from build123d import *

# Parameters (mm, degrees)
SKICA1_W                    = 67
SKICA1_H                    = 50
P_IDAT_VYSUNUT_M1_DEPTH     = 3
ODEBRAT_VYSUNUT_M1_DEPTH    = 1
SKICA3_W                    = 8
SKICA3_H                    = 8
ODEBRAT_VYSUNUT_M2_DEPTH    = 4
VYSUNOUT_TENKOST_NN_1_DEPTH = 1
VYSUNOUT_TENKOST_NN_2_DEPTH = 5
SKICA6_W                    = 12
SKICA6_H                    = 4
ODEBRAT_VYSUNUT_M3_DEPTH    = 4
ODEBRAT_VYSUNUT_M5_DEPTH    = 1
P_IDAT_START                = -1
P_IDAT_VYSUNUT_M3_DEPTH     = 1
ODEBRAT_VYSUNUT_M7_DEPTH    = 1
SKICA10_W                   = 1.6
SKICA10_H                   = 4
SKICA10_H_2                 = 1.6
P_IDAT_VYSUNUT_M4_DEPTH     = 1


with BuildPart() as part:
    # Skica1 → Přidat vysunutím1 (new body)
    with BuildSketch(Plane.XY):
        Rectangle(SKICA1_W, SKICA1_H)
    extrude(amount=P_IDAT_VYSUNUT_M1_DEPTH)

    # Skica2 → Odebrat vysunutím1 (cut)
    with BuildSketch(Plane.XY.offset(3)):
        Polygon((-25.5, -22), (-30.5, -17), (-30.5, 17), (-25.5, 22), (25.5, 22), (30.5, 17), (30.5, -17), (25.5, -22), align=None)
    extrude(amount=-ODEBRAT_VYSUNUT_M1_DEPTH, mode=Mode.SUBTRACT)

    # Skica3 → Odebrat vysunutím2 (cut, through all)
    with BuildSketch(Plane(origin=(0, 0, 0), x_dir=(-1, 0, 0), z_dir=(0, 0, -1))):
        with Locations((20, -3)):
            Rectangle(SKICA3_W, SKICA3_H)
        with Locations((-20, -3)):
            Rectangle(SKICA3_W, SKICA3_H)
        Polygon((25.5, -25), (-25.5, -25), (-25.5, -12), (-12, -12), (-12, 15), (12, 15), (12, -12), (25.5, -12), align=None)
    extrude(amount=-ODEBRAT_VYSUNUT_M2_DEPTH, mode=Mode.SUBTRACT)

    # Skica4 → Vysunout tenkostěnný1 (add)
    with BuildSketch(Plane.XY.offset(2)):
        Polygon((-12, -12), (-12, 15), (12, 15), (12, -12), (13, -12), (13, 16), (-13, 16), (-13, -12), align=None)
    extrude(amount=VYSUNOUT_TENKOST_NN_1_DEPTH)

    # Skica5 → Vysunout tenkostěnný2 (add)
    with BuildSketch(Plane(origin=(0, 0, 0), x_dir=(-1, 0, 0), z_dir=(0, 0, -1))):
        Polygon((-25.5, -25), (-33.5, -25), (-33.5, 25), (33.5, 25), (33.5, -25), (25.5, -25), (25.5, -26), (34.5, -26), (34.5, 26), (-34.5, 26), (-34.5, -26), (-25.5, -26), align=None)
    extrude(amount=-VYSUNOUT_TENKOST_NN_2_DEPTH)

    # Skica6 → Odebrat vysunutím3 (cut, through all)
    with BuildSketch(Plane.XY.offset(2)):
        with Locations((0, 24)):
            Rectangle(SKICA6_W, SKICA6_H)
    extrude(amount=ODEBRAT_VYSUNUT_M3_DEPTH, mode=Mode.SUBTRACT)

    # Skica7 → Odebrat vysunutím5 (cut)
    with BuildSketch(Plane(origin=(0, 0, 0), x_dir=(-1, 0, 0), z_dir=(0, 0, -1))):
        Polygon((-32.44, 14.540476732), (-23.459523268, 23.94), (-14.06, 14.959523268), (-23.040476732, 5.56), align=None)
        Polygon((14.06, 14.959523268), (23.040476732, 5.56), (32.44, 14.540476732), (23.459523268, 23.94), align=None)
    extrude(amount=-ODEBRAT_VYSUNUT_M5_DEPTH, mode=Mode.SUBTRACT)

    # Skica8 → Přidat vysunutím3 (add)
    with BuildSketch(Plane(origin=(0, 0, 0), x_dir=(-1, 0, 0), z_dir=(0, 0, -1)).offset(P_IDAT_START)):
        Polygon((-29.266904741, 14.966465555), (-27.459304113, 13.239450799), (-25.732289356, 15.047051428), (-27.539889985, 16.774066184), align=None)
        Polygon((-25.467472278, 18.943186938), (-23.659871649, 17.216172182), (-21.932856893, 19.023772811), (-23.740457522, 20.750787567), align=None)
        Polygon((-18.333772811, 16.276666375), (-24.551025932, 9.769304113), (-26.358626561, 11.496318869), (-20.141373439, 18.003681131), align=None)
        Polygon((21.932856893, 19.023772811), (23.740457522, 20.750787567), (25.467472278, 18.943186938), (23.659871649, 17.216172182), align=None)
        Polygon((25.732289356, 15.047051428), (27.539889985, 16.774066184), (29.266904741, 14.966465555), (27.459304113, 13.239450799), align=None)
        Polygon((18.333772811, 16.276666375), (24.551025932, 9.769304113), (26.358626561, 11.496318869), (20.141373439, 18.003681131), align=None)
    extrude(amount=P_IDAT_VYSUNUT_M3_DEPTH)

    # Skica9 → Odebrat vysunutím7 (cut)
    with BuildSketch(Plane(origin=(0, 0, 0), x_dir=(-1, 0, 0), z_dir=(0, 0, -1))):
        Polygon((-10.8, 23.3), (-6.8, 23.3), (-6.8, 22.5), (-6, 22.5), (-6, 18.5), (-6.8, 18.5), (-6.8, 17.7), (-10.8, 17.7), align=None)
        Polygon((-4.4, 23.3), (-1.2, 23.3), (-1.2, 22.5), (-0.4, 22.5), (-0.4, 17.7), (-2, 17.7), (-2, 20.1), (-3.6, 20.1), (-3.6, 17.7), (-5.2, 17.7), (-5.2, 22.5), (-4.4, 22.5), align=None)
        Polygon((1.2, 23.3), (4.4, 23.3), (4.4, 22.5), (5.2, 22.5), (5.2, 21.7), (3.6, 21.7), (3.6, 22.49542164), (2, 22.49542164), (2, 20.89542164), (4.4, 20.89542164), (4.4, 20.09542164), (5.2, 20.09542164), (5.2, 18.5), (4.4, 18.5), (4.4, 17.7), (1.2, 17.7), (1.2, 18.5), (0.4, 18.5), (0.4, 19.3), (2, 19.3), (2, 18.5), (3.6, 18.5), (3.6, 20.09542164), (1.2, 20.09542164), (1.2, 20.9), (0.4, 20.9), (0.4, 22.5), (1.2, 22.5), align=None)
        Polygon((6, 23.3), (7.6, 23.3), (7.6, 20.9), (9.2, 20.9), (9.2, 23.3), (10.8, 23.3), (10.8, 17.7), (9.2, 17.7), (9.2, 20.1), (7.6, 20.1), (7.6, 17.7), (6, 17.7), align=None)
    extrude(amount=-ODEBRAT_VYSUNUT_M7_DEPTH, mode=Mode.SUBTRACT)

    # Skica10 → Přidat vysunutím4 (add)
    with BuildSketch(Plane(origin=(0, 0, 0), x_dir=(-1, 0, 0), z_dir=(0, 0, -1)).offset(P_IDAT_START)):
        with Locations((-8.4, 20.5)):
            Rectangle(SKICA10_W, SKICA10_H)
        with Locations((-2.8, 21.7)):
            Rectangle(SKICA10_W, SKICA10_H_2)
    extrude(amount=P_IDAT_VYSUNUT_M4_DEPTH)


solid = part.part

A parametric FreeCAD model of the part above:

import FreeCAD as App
import Part
import Sketcher

V = App.Vector
Q = App.Units.Quantity

doc = App.newDocument("Part")
body = doc.addObject("PartDesign::Body", "Body")

# Sketch on XY plane
sketch1 = body.newObject("Sketcher::SketchObject", "Sketch")
sketch1.AttachmentSupport = (doc.getObject("XY_Plane"), [""])
sketch1.MapMode = "FlatFace"
sketch1.addGeometry([
    Part.LineSegment(V(-33.5, 25, 0), V(-33.5, -25, 0)),
    Part.LineSegment(V(-33.5, -25, 0), V(33.5, -25, 0)),
    Part.LineSegment(V(33.5, -25, 0), V(33.5, 25, 0)),
    Part.LineSegment(V(33.5, 25, 0), V(-33.5, 25, 0)),
], False)
sketch1.addConstraint([
    Sketcher.Constraint("Coincident", 0, 2, 1, 1),
    Sketcher.Constraint("Coincident", 1, 2, 2, 1),
    Sketcher.Constraint("Coincident", 2, 2, 3, 1),
    Sketcher.Constraint("Coincident", 3, 2, 0, 1),
    Sketcher.Constraint("Vertical", 0),
    Sketcher.Constraint("Horizontal", 1),
    Sketcher.Constraint("Vertical", 2),
    Sketcher.Constraint("Horizontal", 3),
    Sketcher.Constraint("Symmetric", 0, 2, 2, 2, -1, 1),
    Sketcher.Constraint("DistanceX", 1, 1, 1, 2, Q("67 mm")),
    Sketcher.Constraint("DistanceY", 0, 2, 0, 1, Q("50 mm")),
])
pad1 = body.newObject("PartDesign::Pad", "Pad")
pad1.Profile = sketch1
pad1.Length = 3

# Sketch on XY plane
sketch2 = body.newObject("Sketcher::SketchObject", "Sketch001")
sketch2.AttachmentSupport = (doc.getObject("XY_Plane"), [""])
sketch2.MapMode = "FlatFace"
sketch2.AttachmentOffset = App.Placement(V(0, 0, 3), App.Rotation())
sketch2.addGeometry([
    Part.LineSegment(V(-30.5, -17, 0), V(-25.5, -22, 0)),  # 0
    Part.LineSegment(V(-25.5, -22, 0), V(25.5, -22, 0)),  # 1
    Part.LineSegment(V(25.5, -22, 0), V(30.5, -17, 0)),  # 2
    Part.LineSegment(V(30.5, -17, 0), V(30.5, 17, 0)),  # 3
    Part.LineSegment(V(30.5, 17, 0), V(25.5, 22, 0)),  # 4
    Part.LineSegment(V(25.5, 22, 0), V(-25.5, 22, 0)),  # 5
    Part.LineSegment(V(-25.5, 22, 0), V(-30.5, 17, 0)),  # 6
    Part.LineSegment(V(-30.5, 17, 0), V(-30.5, -17, 0)),  # 7
], False)
sketch2.addConstraint([
    Sketcher.Constraint("Coincident", 0, 2, 1, 1),
    Sketcher.Constraint("Coincident", 1, 2, 2, 1),
    Sketcher.Constraint("Coincident", 2, 2, 3, 1),
    Sketcher.Constraint("Coincident", 3, 2, 4, 1),
    Sketcher.Constraint("Coincident", 4, 2, 5, 1),
    Sketcher.Constraint("Coincident", 5, 2, 6, 1),
    Sketcher.Constraint("Coincident", 6, 2, 7, 1),
    Sketcher.Constraint("Coincident", 7, 2, 0, 1),
    Sketcher.Constraint("Horizontal", 1),
    Sketcher.Constraint("Vertical", 3),
    Sketcher.Constraint("Horizontal", 5),
    Sketcher.Constraint("Vertical", 7),
    Sketcher.Constraint("Symmetric", 0, 2, 4, 2, -1, 1),
    Sketcher.Constraint("Symmetric", 2, 2, 6, 2, -1, 1),
    Sketcher.Constraint("Perpendicular", 0, 2),
    Sketcher.Constraint("Perpendicular", 2, 4),
    Sketcher.Constraint("Perpendicular", 4, 6),
    Sketcher.Constraint("Horizontal", 3, 2, 6, 2),
    Sketcher.Constraint("Vertical", 1, 2, 4, 2),
    Sketcher.Constraint("DistanceX", 1, 1, 1, 2, Q("51 mm")),
    Sketcher.Constraint("DistanceY", 3, 1, 3, 2, Q("34 mm")),
    Sketcher.Constraint("DistanceY", 0, 2, -1, 1, Q("22 mm")),
])
pocket1 = body.newObject("PartDesign::Pocket", "Pocket")
pocket1.Profile = sketch2
pocket1.Length = 1

# Sketch on XY plane
sketch3 = body.newObject("Sketcher::SketchObject", "Sketch002")
sketch3.AttachmentSupport = (doc.getObject("XY_Plane"), [""])
sketch3.MapMode = "FlatFace"
sketch3.addGeometry([
    Part.LineSegment(V(-16, 1, 0), V(-16, -7, 0)),  # 0
    Part.LineSegment(V(-16, -7, 0), V(-24, -7, 0)),  # 1
    Part.LineSegment(V(-24, -7, 0), V(-24, 1, 0)),  # 2
    Part.LineSegment(V(-24, 1, 0), V(-16, 1, 0)),  # 3
    Part.LineSegment(V(24, 1, 0), V(24, -7, 0)),  # 4
    Part.LineSegment(V(24, -7, 0), V(16, -7, 0)),  # 5
    Part.LineSegment(V(16, -7, 0), V(16, 1, 0)),  # 6
    Part.LineSegment(V(16, 1, 0), V(24, 1, 0)),  # 7
    Part.LineSegment(V(25.5, -25, 0), V(-25.5, -25, 0)),  # 8
    Part.LineSegment(V(-25.5, -25, 0), V(-25.5, -12, 0)),  # 9
    Part.LineSegment(V(-25.5, -12, 0), V(-12, -12, 0)),  # 10
    Part.LineSegment(V(-12, -12, 0), V(-12, 15, 0)),  # 11
    Part.LineSegment(V(-12, 15, 0), V(12, 15, 0)),  # 12
    Part.LineSegment(V(12, 15, 0), V(12, -12, 0)),  # 13
    Part.LineSegment(V(12, -12, 0), V(25.5, -12, 0)),  # 14
    Part.LineSegment(V(25.5, -12, 0), V(25.5, -25, 0)),  # 15
], False)
sketch3.addConstraint([
    Sketcher.Constraint("Coincident", 0, 2, 1, 1),
    Sketcher.Constraint("Coincident", 1, 2, 2, 1),
    Sketcher.Constraint("Coincident", 2, 2, 3, 1),
    Sketcher.Constraint("Coincident", 3, 2, 0, 1),
    Sketcher.Constraint("Coincident", 4, 2, 5, 1),
    Sketcher.Constraint("Coincident", 5, 2, 6, 1),
    Sketcher.Constraint("Coincident", 6, 2, 7, 1),
    Sketcher.Constraint("Coincident", 7, 2, 4, 1),
    Sketcher.Constraint("Coincident", 8, 2, 9, 1),
    Sketcher.Constraint("Coincident", 9, 2, 10, 1),
    Sketcher.Constraint("Coincident", 10, 2, 11, 1),
    Sketcher.Constraint("Coincident", 11, 2, 12, 1),
    Sketcher.Constraint("Coincident", 12, 2, 13, 1),
    Sketcher.Constraint("Coincident", 13, 2, 14, 1),
    Sketcher.Constraint("Coincident", 14, 2, 15, 1),
    Sketcher.Constraint("Coincident", 15, 2, 8, 1),
    Sketcher.Constraint("Vertical", 0),
    Sketcher.Constraint("Horizontal", 1),
    Sketcher.Constraint("Vertical", 2),
    Sketcher.Constraint("Horizontal", 3),
    Sketcher.Constraint("Vertical", 4),
    Sketcher.Constraint("Horizontal", 5),
    Sketcher.Constraint("Vertical", 6),
    Sketcher.Constraint("Horizontal", 7),
    Sketcher.Constraint("Horizontal", 8),
    Sketcher.Constraint("Vertical", 9),
    Sketcher.Constraint("Horizontal", 10),
    Sketcher.Constraint("Vertical", 11),
    Sketcher.Constraint("Horizontal", 12),
    Sketcher.Constraint("Vertical", 13),
    Sketcher.Constraint("Horizontal", 14),
    Sketcher.Constraint("Vertical", 15),
    Sketcher.Constraint("Symmetric", 1, 2, 4, 2, -2),
    Sketcher.Constraint("Symmetric", 3, 2, 6, 2, -2),
    Sketcher.Constraint("Symmetric", 10, 2, 13, 2, -2),
    Sketcher.Constraint("Equal", 10, 14),
    Sketcher.Constraint("Equal", 7, 0),
    Sketcher.Constraint("DistanceX", 1, 2, 1, 1, Q("8 mm")),
    Sketcher.Constraint("DistanceX", 8, 2, 8, 1, Q("51 mm")),
    Sketcher.Constraint("DistanceX", 12, 1, 12, 2, Q("24 mm")),
    Sketcher.Constraint("DistanceY", 9, 1, 9, 2, Q("13 mm")),
    Sketcher.Constraint("DistanceY", 11, 1, 11, 2, Q("27 mm")),
    Sketcher.Constraint("DistanceX", 0, 2, -1, 1, Q("16 mm")),
    Sketcher.Constraint("DistanceY", 0, 2, -1, 1, Q("7 mm")),
    Sketcher.Constraint("DistanceY", 8, 2, -1, 1, Q("25 mm")),
])
pocket2 = body.newObject("PartDesign::Pocket", "Pocket001")
pocket2.Profile = sketch3
pocket2.Type = "ThroughAll"
pocket2.Reversed = True

# Sketch on XY plane
sketch4 = body.newObject("Sketcher::SketchObject", "Sketch003")
sketch4.AttachmentSupport = (doc.getObject("XY_Plane"), [""])
sketch4.MapMode = "FlatFace"
sketch4.AttachmentOffset = App.Placement(V(0, 0, 2), App.Rotation())
sketch4.addGeometry([
    Part.LineSegment(V(-12, -12, 0), V(-12, 15, 0)),  # 0
    Part.LineSegment(V(-12, 15, 0), V(12, 15, 0)),  # 1
    Part.LineSegment(V(12, 15, 0), V(12, -12, 0)),  # 2
    Part.LineSegment(V(12, -12, 0), V(13, -12, 0)),  # 3
    Part.LineSegment(V(13, -12, 0), V(13, 16, 0)),  # 4
    Part.LineSegment(V(13, 16, 0), V(-13, 16, 0)),  # 5
    Part.LineSegment(V(-13, 16, 0), V(-13, -12, 0)),  # 6
    Part.LineSegment(V(-13, -12, 0), V(-12, -12, 0)),  # 7
], False)
sketch4.addConstraint([
    Sketcher.Constraint("Coincident", 0, 2, 1, 1),
    Sketcher.Constraint("Coincident", 1, 2, 2, 1),
    Sketcher.Constraint("Coincident", 2, 2, 3, 1),
    Sketcher.Constraint("Coincident", 3, 2, 4, 1),
    Sketcher.Constraint("Coincident", 4, 2, 5, 1),
    Sketcher.Constraint("Coincident", 5, 2, 6, 1),
    Sketcher.Constraint("Coincident", 6, 2, 7, 1),
    Sketcher.Constraint("Coincident", 7, 2, 0, 1),
    Sketcher.Constraint("Vertical", 0),
    Sketcher.Constraint("Horizontal", 1),
    Sketcher.Constraint("Vertical", 2),
    Sketcher.Constraint("Horizontal", 3),
    Sketcher.Constraint("Vertical", 4),
    Sketcher.Constraint("Horizontal", 5),
    Sketcher.Constraint("Vertical", 6),
    Sketcher.Constraint("Horizontal", 7),
    Sketcher.Constraint("Symmetric", 3, 2, 6, 2, -2),
    Sketcher.Constraint("Equal", 3, 7),
    Sketcher.Constraint("DistanceX", 1, 1, 1, 2, Q("24 mm")),
    Sketcher.Constraint("DistanceX", 3, 1, 3, 2, Q("1 mm")),
    Sketcher.Constraint("DistanceY", 0, 1, 0, 2, Q("27 mm")),
    Sketcher.Constraint("DistanceY", 4, 1, 4, 2, Q("28 mm")),
    Sketcher.Constraint("DistanceY", -1, 1, 0, 2, Q("15 mm")),
])
pad2 = body.newObject("PartDesign::Pad", "Pad001")
pad2.Profile = sketch4
pad2.Length = 1

# Sketch on XY plane
sketch5 = body.newObject("Sketcher::SketchObject", "Sketch004")
sketch5.AttachmentSupport = (doc.getObject("XY_Plane"), [""])
sketch5.MapMode = "FlatFace"
sketch5.addGeometry([
    Part.LineSegment(V(25.5, -25, 0), V(33.5, -25, 0)),  # 0
    Part.LineSegment(V(33.5, -25, 0), V(33.5, 25, 0)),  # 1
    Part.LineSegment(V(33.5, 25, 0), V(-33.5, 25, 0)),  # 2
    Part.LineSegment(V(-33.5, 25, 0), V(-33.5, -25, 0)),  # 3
    Part.LineSegment(V(-33.5, -25, 0), V(-25.5, -25, 0)),  # 4
    Part.LineSegment(V(-25.5, -25, 0), V(-25.5, -26, 0)),  # 5
    Part.LineSegment(V(-25.5, -26, 0), V(-34.5, -26, 0)),  # 6
    Part.LineSegment(V(-34.5, -26, 0), V(-34.5, 26, 0)),  # 7
    Part.LineSegment(V(-34.5, 26, 0), V(34.5, 26, 0)),  # 8
    Part.LineSegment(V(34.5, 26, 0), V(34.5, -26, 0)),  # 9
    Part.LineSegment(V(34.5, -26, 0), V(25.5, -26, 0)),  # 10
    Part.LineSegment(V(25.5, -26, 0), V(25.5, -25, 0)),  # 11
], False)
sketch5.addConstraint([
    Sketcher.Constraint("Coincident", 0, 2, 1, 1),
    Sketcher.Constraint("Coincident", 1, 2, 2, 1),
    Sketcher.Constraint("Coincident", 2, 2, 3, 1),
    Sketcher.Constraint("Coincident", 3, 2, 4, 1),
    Sketcher.Constraint("Coincident", 4, 2, 5, 1),
    Sketcher.Constraint("Coincident", 5, 2, 6, 1),
    Sketcher.Constraint("Coincident", 6, 2, 7, 1),
    Sketcher.Constraint("Coincident", 7, 2, 8, 1),
    Sketcher.Constraint("Coincident", 8, 2, 9, 1),
    Sketcher.Constraint("Coincident", 9, 2, 10, 1),
    Sketcher.Constraint("Coincident", 10, 2, 11, 1),
    Sketcher.Constraint("Coincident", 11, 2, 0, 1),
    Sketcher.Constraint("Horizontal", 0),
    Sketcher.Constraint("Vertical", 1),
    Sketcher.Constraint("Horizontal", 2),
    Sketcher.Constraint("Vertical", 3),
    Sketcher.Constraint("Horizontal", 4),
    Sketcher.Constraint("Vertical", 5),
    Sketcher.Constraint("Horizontal", 6),
    Sketcher.Constraint("Vertical", 7),
    Sketcher.Constraint("Horizontal", 8),
    Sketcher.Constraint("Vertical", 9),
    Sketcher.Constraint("Horizontal", 10),
    Sketcher.Constraint("Vertical", 11),
    Sketcher.Constraint("Symmetric", 0, 2, 2, 2, -1, 1),
    Sketcher.Constraint("Symmetric", 6, 2, 8, 2, -1, 1),
    Sketcher.Constraint("Symmetric", 5, 2, 10, 2, -2),
    Sketcher.Constraint("Horizontal", 0, 2, 3, 2),
    Sketcher.Constraint("DistanceX", 0, 1, 0, 2, Q("8 mm")),
    Sketcher.Constraint("DistanceX", 2, 2, 2, 1, Q("67 mm")),
    Sketcher.Constraint("DistanceX", 6, 2, 6, 1, Q("9 mm")),
    Sketcher.Constraint("DistanceY", 1, 1, 1, 2, Q("50 mm")),
    Sketcher.Constraint("DistanceY", 5, 2, 5, 1, Q("1 mm")),
])
pad3 = body.newObject("PartDesign::Pad", "Pad002")
pad3.Profile = sketch5
pad3.Length = 5

# Sketch on XY plane
sketch6 = body.newObject("Sketcher::SketchObject", "Sketch005")
sketch6.AttachmentSupport = (doc.getObject("XY_Plane"), [""])
sketch6.MapMode = "FlatFace"
sketch6.AttachmentOffset = App.Placement(V(0, 0, 2), App.Rotation())
sketch6.addGeometry([
    Part.LineSegment(V(-6, 26, 0), V(-6, 22, 0)),
    Part.LineSegment(V(-6, 22, 0), V(6, 22, 0)),
    Part.LineSegment(V(6, 22, 0), V(6, 26, 0)),
    Part.LineSegment(V(6, 26, 0), V(-6, 26, 0)),
], False)
sketch6.addConstraint([
    Sketcher.Constraint("Coincident", 0, 2, 1, 1),
    Sketcher.Constraint("Coincident", 1, 2, 2, 1),
    Sketcher.Constraint("Coincident", 2, 2, 3, 1),
    Sketcher.Constraint("Coincident", 3, 2, 0, 1),
    Sketcher.Constraint("Vertical", 0),
    Sketcher.Constraint("Horizontal", 1),
    Sketcher.Constraint("Vertical", 2),
    Sketcher.Constraint("Horizontal", 3),
    Sketcher.Constraint("DistanceX", 1, 1, 1, 2, Q("12 mm")),
    Sketcher.Constraint("DistanceY", 0, 2, 0, 1, Q("4 mm")),
    Sketcher.Constraint("DistanceX", 0, 2, -1, 1, Q("6 mm")),
    Sketcher.Constraint("DistanceY", -1, 1, 0, 2, Q("22 mm")),
])
pocket3 = body.newObject("PartDesign::Pocket", "Pocket002")
pocket3.Profile = sketch6
pocket3.Type = "ThroughAll"
pocket3.Reversed = True

# Sketch on XY plane
sketch7 = body.newObject("Sketcher::SketchObject", "Sketch006")
sketch7.AttachmentSupport = (doc.getObject("XY_Plane"), [""])
sketch7.MapMode = "FlatFace"
sketch7.addGeometry([
    Part.LineSegment(V(23.459523, 23.94, 0), V(32.44, 14.540477, 0)),  # 0
    Part.LineSegment(V(32.44, 14.540477, 0), V(23.040477, 5.56, 0)),  # 1
    Part.LineSegment(V(23.040477, 5.56, 0), V(14.06, 14.959523, 0)),  # 2
    Part.LineSegment(V(14.06, 14.959523, 0), V(23.459523, 23.94, 0)),  # 3
    Part.LineSegment(V(-14.06, 14.959523, 0), V(-23.040477, 5.56, 0)),  # 4
    Part.LineSegment(V(-23.040477, 5.56, 0), V(-32.44, 14.540477, 0)),  # 5
    Part.LineSegment(V(-32.44, 14.540477, 0), V(-23.459523, 23.94, 0)),  # 6
    Part.LineSegment(V(-23.459523, 23.94, 0), V(-14.06, 14.959523, 0)),  # 7
], False)
sketch7.addConstraint([
    Sketcher.Constraint("Coincident", 0, 2, 1, 1),
    Sketcher.Constraint("Coincident", 1, 2, 2, 1),
    Sketcher.Constraint("Coincident", 2, 2, 3, 1),
    Sketcher.Constraint("Coincident", 3, 2, 0, 1),
    Sketcher.Constraint("Coincident", 4, 2, 5, 1),
    Sketcher.Constraint("Coincident", 5, 2, 6, 1),
    Sketcher.Constraint("Coincident", 6, 2, 7, 1),
    Sketcher.Constraint("Coincident", 7, 2, 4, 1),
    Sketcher.Constraint("Symmetric", 1, 2, 4, 2, -2),
    Sketcher.Constraint("Symmetric", 0, 2, 5, 2, -2),
    Sketcher.Constraint("Symmetric", 3, 2, 6, 2, -2),
    Sketcher.Constraint("Symmetric", 2, 2, 7, 2, -2),
    Sketcher.Constraint("Perpendicular", 0, 1),
    Sketcher.Constraint("Perpendicular", 1, 2),
    Sketcher.Constraint("Perpendicular", 2, 3),
    Sketcher.Constraint("Equal", 0, 1),
    Sketcher.Constraint("Distance", 0, Q("13 mm")),
    Sketcher.Constraint("DistanceX", 4, 2, 3, 2, Q("46.5 mm")),
    Sketcher.Constraint("DistanceX", -1, 1, 0, 2, Q("32.44 mm")),
    Sketcher.Constraint("DistanceY", -1, 1, 1, 2, Q("5.56 mm")),
])
pocket4 = body.newObject("PartDesign::Pocket", "Pocket003")
pocket4.Profile = sketch7
pocket4.Length = 1
pocket4.Reversed = True

# Sketch on XY plane
sketch8 = body.newObject("Sketcher::SketchObject", "Sketch007")
sketch8.AttachmentSupport = (doc.getObject("XY_Plane"), [""])
sketch8.MapMode = "FlatFace"
sketch8.AttachmentOffset = App.Placement(V(0, 0, 1), App.Rotation())
sketch8.addGeometry([
    Part.LineSegment(V(29.266905, 14.966466, 0), V(27.459304, 13.239451, 0)),  # 0
    Part.LineSegment(V(27.459304, 13.239451, 0), V(25.732289, 15.047051, 0)),  # 1
    Part.LineSegment(V(25.732289, 15.047051, 0), V(27.53989, 16.774066, 0)),  # 2
    Part.LineSegment(V(27.53989, 16.774066, 0), V(29.266905, 14.966466, 0)),  # 3
    Part.LineSegment(V(25.467472, 18.943187, 0), V(23.659872, 17.216172, 0)),  # 4
    Part.LineSegment(V(23.659872, 17.216172, 0), V(21.932857, 19.023773, 0)),  # 5
    Part.LineSegment(V(21.932857, 19.023773, 0), V(23.740458, 20.750788, 0)),  # 6
    Part.LineSegment(V(23.740458, 20.750788, 0), V(25.467472, 18.943187, 0)),  # 7
    Part.LineSegment(V(24.551026, 9.769304, 0), V(18.333773, 16.276666, 0)),  # 8
    Part.LineSegment(V(18.333773, 16.276666, 0), V(20.141373, 18.003681, 0)),  # 9
    Part.LineSegment(V(20.141373, 18.003681, 0), V(26.358627, 11.496319, 0)),  # 10
    Part.LineSegment(V(26.358627, 11.496319, 0), V(24.551026, 9.769304, 0)),  # 11
    Part.LineSegment(V(-23.740458, 20.750788, 0), V(-21.932857, 19.023773, 0)),  # 12
    Part.LineSegment(V(-21.932857, 19.023773, 0), V(-23.659872, 17.216172, 0)),  # 13
    Part.LineSegment(V(-23.659872, 17.216172, 0), V(-25.467472, 18.943187, 0)),  # 14
    Part.LineSegment(V(-25.467472, 18.943187, 0), V(-23.740458, 20.750788, 0)),  # 15
    Part.LineSegment(V(-27.53989, 16.774066, 0), V(-25.732289, 15.047051, 0)),  # 16
    Part.LineSegment(V(-25.732289, 15.047051, 0), V(-27.459304, 13.239451, 0)),  # 17
    Part.LineSegment(V(-27.459304, 13.239451, 0), V(-29.266905, 14.966466, 0)),  # 18
    Part.LineSegment(V(-29.266905, 14.966466, 0), V(-27.53989, 16.774066, 0)),  # 19
    Part.LineSegment(V(-18.333773, 16.276666, 0), V(-24.551026, 9.769304, 0)),  # 20
    Part.LineSegment(V(-24.551026, 9.769304, 0), V(-26.358627, 11.496319, 0)),  # 21
    Part.LineSegment(V(-26.358627, 11.496319, 0), V(-20.141373, 18.003681, 0)),  # 22
    Part.LineSegment(V(-20.141373, 18.003681, 0), V(-18.333773, 16.276666, 0)),  # 23
], False)
sketch8.addConstraint([
    Sketcher.Constraint("Coincident", 0, 2, 1, 1),
    Sketcher.Constraint("Coincident", 1, 2, 2, 1),
    Sketcher.Constraint("Coincident", 2, 2, 3, 1),
    Sketcher.Constraint("Coincident", 3, 2, 0, 1),
    Sketcher.Constraint("Coincident", 4, 2, 5, 1),
    Sketcher.Constraint("Coincident", 5, 2, 6, 1),
    Sketcher.Constraint("Coincident", 6, 2, 7, 1),
    Sketcher.Constraint("Coincident", 7, 2, 4, 1),
    Sketcher.Constraint("Coincident", 8, 2, 9, 1),
    Sketcher.Constraint("Coincident", 9, 2, 10, 1),
    Sketcher.Constraint("Coincident", 10, 2, 11, 1),
    Sketcher.Constraint("Coincident", 11, 2, 8, 1),
    Sketcher.Constraint("Coincident", 12, 2, 13, 1),
    Sketcher.Constraint("Coincident", 13, 2, 14, 1),
    Sketcher.Constraint("Coincident", 14, 2, 15, 1),
    Sketcher.Constraint("Coincident", 15, 2, 12, 1),
    Sketcher.Constraint("Coincident", 16, 2, 17, 1),
    Sketcher.Constraint("Coincident", 17, 2, 18, 1),
    Sketcher.Constraint("Coincident", 18, 2, 19, 1),
    Sketcher.Constraint("Coincident", 19, 2, 16, 1),
    Sketcher.Constraint("Coincident", 20, 2, 21, 1),
    Sketcher.Constraint("Coincident", 21, 2, 22, 1),
    Sketcher.Constraint("Coincident", 22, 2, 23, 1),
    Sketcher.Constraint("Coincident", 23, 2, 20, 1),
    Sketcher.Constraint("Symmetric", 5, 2, 12, 2, -2),
    Sketcher.Constraint("Symmetric", 4, 2, 13, 2, -2),
    Sketcher.Constraint("Symmetric", 7, 2, 14, 2, -2),
    Sketcher.Constraint("Symmetric", 6, 2, 15, 2, -2),
    Sketcher.Constraint("Symmetric", 1, 2, 16, 2, -2),
    Sketcher.Constraint("Symmetric", 0, 2, 17, 2, -2),
    Sketcher.Constraint("Symmetric", 3, 2, 18, 2, -2),
    Sketcher.Constraint("Symmetric", 2, 2, 19, 2, -2),
    Sketcher.Constraint("Symmetric", 11, 2, 20, 2, -2),
    Sketcher.Constraint("Symmetric", 10, 2, 21, 2, -2),
    Sketcher.Constraint("Symmetric", 9, 2, 22, 2, -2),
    Sketcher.Constraint("Symmetric", 8, 2, 23, 2, -2),
    Sketcher.Constraint("Perpendicular", 0, 1),
    Sketcher.Constraint("Perpendicular", 1, 2),
    Sketcher.Constraint("Perpendicular", 2, 3),
    Sketcher.Constraint("Perpendicular", 3, 4),
    Sketcher.Constraint("Perpendicular", 4, 5),
    Sketcher.Constraint("Perpendicular", 5, 6),
    Sketcher.Constraint("Perpendicular", 6, 7),
    Sketcher.Constraint("Parallel", 7, 8),
    Sketcher.Constraint("Perpendicular", 8, 9),
    Sketcher.Constraint("Perpendicular", 9, 10),
    Sketcher.Constraint("Perpendicular", 10, 11),
    Sketcher.Constraint("Equal", 0, 1),
    Sketcher.Constraint("Equal", 3, 4),
    Sketcher.Constraint("Equal", 4, 5),
    Sketcher.Constraint("Equal", 7, 9),
    Sketcher.Constraint("Distance", 8, Q("9 mm")),
    Sketcher.Constraint("Distance", 0, Q("2.5 mm")),
    Sketcher.Constraint("DistanceY", 0, 2, 1, 2, Q("1.807601 mm")),
    Sketcher.Constraint("DistanceX", 8, 2, 4, 2, Q("5.326099 mm")),
    Sketcher.Constraint("DistanceY", -1, 1, 0, 2, Q("13.239451 mm")),
    Sketcher.Constraint("DistanceX", -1, 1, 1, 2, Q("25.732289 mm")),
    Sketcher.Constraint("DistanceX", -1, 1, 4, 2, Q("23.659872 mm")),
    Sketcher.Constraint("DistanceY", -1, 1, 9, 2, Q("18.003681 mm")),
    Sketcher.Constraint("DistanceY", 1, 2, 4, 2, Q("2.169121 mm")),
])
pad4 = body.newObject("PartDesign::Pad", "Pad003")
pad4.Profile = sketch8
pad4.Length = 1
pad4.Reversed = True

# Sketch on XY plane
sketch9 = body.newObject("Sketcher::SketchObject", "Sketch008")
sketch9.AttachmentSupport = (doc.getObject("XY_Plane"), [""])
sketch9.MapMode = "FlatFace"
sketch9.addGeometry([
    Part.LineSegment(V(6.8, 23.3, 0), V(10.8, 23.3, 0)),  # 0
    Part.LineSegment(V(10.8, 23.3, 0), V(10.8, 17.7, 0)),  # 1
    Part.LineSegment(V(10.8, 17.7, 0), V(6.8, 17.7, 0)),  # 2
    Part.LineSegment(V(6.8, 17.7, 0), V(6.8, 18.5, 0)),  # 3
    Part.LineSegment(V(6.8, 18.5, 0), V(6, 18.5, 0)),  # 4
    Part.LineSegment(V(6, 18.5, 0), V(6, 22.5, 0)),  # 5
    Part.LineSegment(V(6, 22.5, 0), V(6.8, 22.5, 0)),  # 6
    Part.LineSegment(V(6.8, 22.5, 0), V(6.8, 23.3, 0)),  # 7
    Part.LineSegment(V(1.2, 23.3, 0), V(4.4, 23.3, 0)),  # 8
    Part.LineSegment(V(4.4, 23.3, 0), V(4.4, 22.5, 0)),  # 9
    Part.LineSegment(V(4.4, 22.5, 0), V(5.2, 22.5, 0)),  # 10
    Part.LineSegment(V(5.2, 22.5, 0), V(5.2, 17.7, 0)),  # 11
    Part.LineSegment(V(5.2, 17.7, 0), V(3.6, 17.7, 0)),  # 12
    Part.LineSegment(V(3.6, 17.7, 0), V(3.6, 20.1, 0)),  # 13
    Part.LineSegment(V(3.6, 20.1, 0), V(2, 20.1, 0)),  # 14
    Part.LineSegment(V(2, 20.1, 0), V(2, 17.7, 0)),  # 15
    Part.LineSegment(V(2, 17.7, 0), V(0.4, 17.7, 0)),  # 16
    Part.LineSegment(V(0.4, 17.7, 0), V(0.4, 22.5, 0)),  # 17
    Part.LineSegment(V(0.4, 22.5, 0), V(1.2, 22.5, 0)),  # 18
    Part.LineSegment(V(1.2, 22.5, 0), V(1.2, 23.3, 0)),  # 19
    Part.LineSegment(V(-4.4, 23.3, 0), V(-1.2, 23.3, 0)),  # 20
    Part.LineSegment(V(-1.2, 23.3, 0), V(-1.2, 22.5, 0)),  # 21
    Part.LineSegment(V(-1.2, 22.5, 0), V(-0.4, 22.5, 0)),  # 22
    Part.LineSegment(V(-0.4, 22.5, 0), V(-0.4, 20.9, 0)),  # 23
    Part.LineSegment(V(-0.4, 20.9, 0), V(-1.2, 20.9, 0)),  # 24
    Part.LineSegment(V(-1.2, 20.9, 0), V(-1.2, 20.095422, 0)),  # 25
    Part.LineSegment(V(-1.2, 20.095422, 0), V(-3.6, 20.095422, 0)),  # 26
    Part.LineSegment(V(-3.6, 20.095422, 0), V(-3.6, 18.5, 0)),  # 27
    Part.LineSegment(V(-3.6, 18.5, 0), V(-2, 18.5, 0)),  # 28
    Part.LineSegment(V(-2, 18.5, 0), V(-2, 19.3, 0)),  # 29
    Part.LineSegment(V(-2, 19.3, 0), V(-0.4, 19.3, 0)),  # 30
    Part.LineSegment(V(-0.4, 19.3, 0), V(-0.4, 18.5, 0)),  # 31
    Part.LineSegment(V(-0.4, 18.5, 0), V(-1.2, 18.5, 0)),  # 32
    Part.LineSegment(V(-1.2, 18.5, 0), V(-1.2, 17.7, 0)),  # 33
    Part.LineSegment(V(-1.2, 17.7, 0), V(-4.4, 17.7, 0)),  # 34
    Part.LineSegment(V(-4.4, 17.7, 0), V(-4.4, 18.5, 0)),  # 35
    Part.LineSegment(V(-4.4, 18.5, 0), V(-5.2, 18.5, 0)),  # 36
    Part.LineSegment(V(-5.2, 18.5, 0), V(-5.2, 20.095422, 0)),  # 37
    Part.LineSegment(V(-5.2, 20.095422, 0), V(-4.4, 20.095422, 0)),  # 38
    Part.LineSegment(V(-4.4, 20.095422, 0), V(-4.4, 20.895422, 0)),  # 39
    Part.LineSegment(V(-4.4, 20.895422, 0), V(-2, 20.895422, 0)),  # 40
    Part.LineSegment(V(-2, 20.895422, 0), V(-2, 22.495422, 0)),  # 41
    Part.LineSegment(V(-2, 22.495422, 0), V(-3.6, 22.495422, 0)),  # 42
    Part.LineSegment(V(-3.6, 22.495422, 0), V(-3.6, 21.7, 0)),  # 43
    Part.LineSegment(V(-3.6, 21.7, 0), V(-5.2, 21.7, 0)),  # 44
    Part.LineSegment(V(-5.2, 21.7, 0), V(-5.2, 22.5, 0)),  # 45
    Part.LineSegment(V(-5.2, 22.5, 0), V(-4.4, 22.5, 0)),  # 46
    Part.LineSegment(V(-4.4, 22.5, 0), V(-4.4, 23.3, 0)),  # 47
    Part.LineSegment(V(-7.6, 23.3, 0), V(-6, 23.3, 0)),  # 48
    Part.LineSegment(V(-6, 23.3, 0), V(-6, 17.7, 0)),  # 49
    Part.LineSegment(V(-6, 17.7, 0), V(-7.6, 17.7, 0)),  # 50
    Part.LineSegment(V(-7.6, 17.7, 0), V(-7.6, 20.1, 0)),  # 51
    Part.LineSegment(V(-7.6, 20.1, 0), V(-9.2, 20.1, 0)),  # 52
    Part.LineSegment(V(-9.2, 20.1, 0), V(-9.2, 17.7, 0)),  # 53
    Part.LineSegment(V(-9.2, 17.7, 0), V(-10.8, 17.7, 0)),  # 54
    Part.LineSegment(V(-10.8, 17.7, 0), V(-10.8, 23.3, 0)),  # 55
    Part.LineSegment(V(-10.8, 23.3, 0), V(-9.2, 23.3, 0)),  # 56
    Part.LineSegment(V(-9.2, 23.3, 0), V(-9.2, 20.9, 0)),  # 57
    Part.LineSegment(V(-9.2, 20.9, 0), V(-7.6, 20.9, 0)),  # 58
    Part.LineSegment(V(-7.6, 20.9, 0), V(-7.6, 23.3, 0)),  # 59
], False)
sketch9.addConstraint([
    Sketcher.Constraint("Coincident", 0, 2, 1, 1),
    Sketcher.Constraint("Coincident", 1, 2, 2, 1),
    Sketcher.Constraint("Coincident", 2, 2, 3, 1),
    Sketcher.Constraint("Coincident", 3, 2, 4, 1),
    Sketcher.Constraint("Coincident", 4, 2, 5, 1),
    Sketcher.Constraint("Coincident", 5, 2, 6, 1),
    Sketcher.Constraint("Coincident", 6, 2, 7, 1),
    Sketcher.Constraint("Coincident", 7, 2, 0, 1),
    Sketcher.Constraint("Coincident", 8, 2, 9, 1),
    Sketcher.Constraint("Coincident", 9, 2, 10, 1),
    Sketcher.Constraint("Coincident", 10, 2, 11, 1),
    Sketcher.Constraint("Coincident", 11, 2, 12, 1),
    Sketcher.Constraint("Coincident", 12, 2, 13, 1),
    Sketcher.Constraint("Coincident", 13, 2, 14, 1),
    Sketcher.Constraint("Coincident", 14, 2, 15, 1),
    Sketcher.Constraint("Coincident", 15, 2, 16, 1),
    Sketcher.Constraint("Coincident", 16, 2, 17, 1),
    Sketcher.Constraint("Coincident", 17, 2, 18, 1),
    Sketcher.Constraint("Coincident", 18, 2, 19, 1),
    Sketcher.Constraint("Coincident", 19, 2, 8, 1),
    Sketcher.Constraint("Coincident", 20, 2, 21, 1),
    Sketcher.Constraint("Coincident", 21, 2, 22, 1),
    Sketcher.Constraint("Coincident", 22, 2, 23, 1),
    Sketcher.Constraint("Coincident", 23, 2, 24, 1),
    Sketcher.Constraint("Coincident", 24, 2, 25, 1),
    Sketcher.Constraint("Coincident", 25, 2, 26, 1),
    Sketcher.Constraint("Coincident", 26, 2, 27, 1),
    Sketcher.Constraint("Coincident", 27, 2, 28, 1),
    Sketcher.Constraint("Coincident", 28, 2, 29, 1),
    Sketcher.Constraint("Coincident", 29, 2, 30, 1),
    Sketcher.Constraint("Coincident", 30, 2, 31, 1),
    Sketcher.Constraint("Coincident", 31, 2, 32, 1),
    Sketcher.Constraint("Coincident", 32, 2, 33, 1),
    Sketcher.Constraint("Coincident", 33, 2, 34, 1),
    Sketcher.Constraint("Coincident", 34, 2, 35, 1),
    Sketcher.Constraint("Coincident", 35, 2, 36, 1),
    Sketcher.Constraint("Coincident", 36, 2, 37, 1),
    Sketcher.Constraint("Coincident", 37, 2, 38, 1),
    Sketcher.Constraint("Coincident", 38, 2, 39, 1),
    Sketcher.Constraint("Coincident", 39, 2, 40, 1),
    Sketcher.Constraint("Coincident", 40, 2, 41, 1),
    Sketcher.Constraint("Coincident", 41, 2, 42, 1),
    Sketcher.Constraint("Coincident", 42, 2, 43, 1),
    Sketcher.Constraint("Coincident", 43, 2, 44, 1),
    Sketcher.Constraint("Coincident", 44, 2, 45, 1),
    Sketcher.Constraint("Coincident", 45, 2, 46, 1),
    Sketcher.Constraint("Coincident", 46, 2, 47, 1),
    Sketcher.Constraint("Coincident", 47, 2, 20, 1),
    Sketcher.Constraint("Coincident", 48, 2, 49, 1),
    Sketcher.Constraint("Coincident", 49, 2, 50, 1),
    Sketcher.Constraint("Coincident", 50, 2, 51, 1),
    Sketcher.Constraint("Coincident", 51, 2, 52, 1),
    Sketcher.Constraint("Coincident", 52, 2, 53, 1),
    Sketcher.Constraint("Coincident", 53, 2, 54, 1),
    Sketcher.Constraint("Coincident", 54, 2, 55, 1),
    Sketcher.Constraint("Coincident", 55, 2, 56, 1),
    Sketcher.Constraint("Coincident", 56, 2, 57, 1),
    Sketcher.Constraint("Coincident", 57, 2, 58, 1),
    Sketcher.Constraint("Coincident", 58, 2, 59, 1),
    Sketcher.Constraint("Coincident", 59, 2, 48, 1),
    Sketcher.Constraint("Horizontal", 0),
    Sketcher.Constraint("Vertical", 1),
    Sketcher.Constraint("Horizontal", 2),
    Sketcher.Constraint("Vertical", 3),
    Sketcher.Constraint("Horizontal", 4),
    Sketcher.Constraint("Vertical", 5),
    Sketcher.Constraint("Horizontal", 6),
    Sketcher.Constraint("Vertical", 7),
    Sketcher.Constraint("Horizontal", 8),
    Sketcher.Constraint("Vertical", 9),
    Sketcher.Constraint("Horizontal", 10),
    Sketcher.Constraint("Vertical", 11),
    Sketcher.Constraint("Horizontal", 12),
    Sketcher.Constraint("Vertical", 13),
    Sketcher.Constraint("Horizontal", 14),
    Sketcher.Constraint("Vertical", 15),
    Sketcher.Constraint("Horizontal", 16),
    Sketcher.Constraint("Vertical", 17),
    Sketcher.Constraint("Horizontal", 18),
    Sketcher.Constraint("Vertical", 19),
    Sketcher.Constraint("Horizontal", 20),
    Sketcher.Constraint("Vertical", 21),
    Sketcher.Constraint("Horizontal", 22),
    Sketcher.Constraint("Vertical", 23),
    Sketcher.Constraint("Horizontal", 24),
    Sketcher.Constraint("Vertical", 25),
    Sketcher.Constraint("Horizontal", 26),
    Sketcher.Constraint("Vertical", 27),
    Sketcher.Constraint("Horizontal", 28),
    Sketcher.Constraint("Vertical", 29),
    Sketcher.Constraint("Horizontal", 30),
    Sketcher.Constraint("Vertical", 31),
    Sketcher.Constraint("Horizontal", 32),
    Sketcher.Constraint("Vertical", 33),
    Sketcher.Constraint("Horizontal", 34),
    Sketcher.Constraint("Vertical", 35),
    Sketcher.Constraint("Horizontal", 36),
    Sketcher.Constraint("Vertical", 37),
    Sketcher.Constraint("Horizontal", 38),
    Sketcher.Constraint("Vertical", 39),
    Sketcher.Constraint("Horizontal", 40),
    Sketcher.Constraint("Vertical", 41),
    Sketcher.Constraint("Horizontal", 42),
    Sketcher.Constraint("Vertical", 43),
    Sketcher.Constraint("Horizontal", 44),
    Sketcher.Constraint("Vertical", 45),
    Sketcher.Constraint("Horizontal", 46),
    Sketcher.Constraint("Vertical", 47),
    Sketcher.Constraint("Horizontal", 48),
    Sketcher.Constraint("Vertical", 49),
    Sketcher.Constraint("Horizontal", 50),
    Sketcher.Constraint("Vertical", 51),
    Sketcher.Constraint("Horizontal", 52),
    Sketcher.Constraint("Vertical", 53),
    Sketcher.Constraint("Horizontal", 54),
    Sketcher.Constraint("Vertical", 55),
    Sketcher.Constraint("Horizontal", 56),
    Sketcher.Constraint("Vertical", 57),
    Sketcher.Constraint("Horizontal", 58),
    Sketcher.Constraint("Vertical", 59),
    Sketcher.Constraint("Symmetric", 19, 2, 20, 2, -2),
    Sketcher.Constraint("Symmetric", 17, 2, 22, 2, -2),
    Sketcher.Constraint("Symmetric", 10, 2, 45, 2, -2),
    Sketcher.Constraint("Symmetric", 1, 2, 54, 2, -2),
    Sketcher.Constraint("Horizontal", 7, 2, 8, 2),
    Sketcher.Constraint("Horizontal", 6, 2, 9, 2),
    Sketcher.Constraint("Horizontal", 2, 2, 11, 2),
    Sketcher.Constraint("Horizontal", 12, 2, 15, 2),
    Sketcher.Constraint("Horizontal", 10, 2, 17, 2),
    Sketcher.Constraint("Horizontal", 4, 2, 27, 2),
    Sketcher.Constraint("Horizontal", 28, 2, 31, 2),
    Sketcher.Constraint("Horizontal", 16, 2, 33, 2),
    Sketcher.Constraint("Horizontal", 32, 2, 35, 2),
    Sketcher.Constraint("Horizontal", 26, 2, 37, 2),
    Sketcher.Constraint("Horizontal", 47, 2, 48, 2),
    Sketcher.Constraint("Horizontal", 34, 2, 49, 2),
    Sketcher.Constraint("Horizontal", 14, 2, 51, 2),
    Sketcher.Constraint("Horizontal", 48, 2, 55, 2),
    Sketcher.Constraint("Horizontal", 24, 2, 57, 2),
    Sketcher.Constraint("Vertical", 3, 2, 6, 2),
    Sketcher.Constraint("Vertical", 21, 2, 24, 2),
    Sketcher.Constraint("Vertical", 23, 2, 30, 2),
    Sketcher.Constraint("Vertical", 25, 2, 32, 2),
    Sketcher.Constraint("Vertical", 35, 2, 38, 2),
    Sketcher.Constraint("Vertical", 29, 2, 40, 2),
    Sketcher.Constraint("Vertical", 27, 2, 42, 2),
    Sketcher.Constraint("Vertical", 37, 2, 44, 2),
    Sketcher.Constraint("Vertical", 39, 2, 46, 2),
    Sketcher.Constraint("Vertical", 53, 2, 56, 2),
    Sketcher.Constraint("Vertical", 51, 2, 58, 2),
    Sketcher.Constraint("Equal", 6, 10),
    Sketcher.Constraint("Equal", 12, 14),
    Sketcher.Constraint("Equal", 14, 16),
    Sketcher.Constraint("Equal", 10, 18),
    Sketcher.Constraint("Equal", 8, 20),
    Sketcher.Constraint("Equal", 16, 28),
    Sketcher.Constraint("Equal", 28, 30),
    Sketcher.Constraint("Equal", 44, 48),
    Sketcher.Constraint("Equal", 50, 52),
    Sketcher.Constraint("Equal", 52, 54),
    Sketcher.Constraint("Equal", 46, 3),
    Sketcher.Constraint("Equal", 2, 5),
    Sketcher.Constraint("Equal", 3, 7),
    Sketcher.Constraint("Equal", 40, 13),
    Sketcher.Constraint("Equal", 58, 23),
    Sketcher.Constraint("Equal", 21, 29),
    Sketcher.Constraint("Equal", 35, 39),
    Sketcher.Constraint("Equal", 23, 41),
    Sketcher.Constraint("Equal", 39, 45),
    Sketcher.Constraint("Equal", 53, 57),
    Sketcher.Constraint("DistanceX", 0, 1, 0, 2, Q("4 mm")),
    Sketcher.Constraint("DistanceX", 4, 2, 4, 1, Q("0.8 mm")),
    Sketcher.Constraint("DistanceX", -1, 1, 4, 2, Q("6 mm")),
    Sketcher.Constraint("DistanceX", -1, 1, 14, 2, Q("2 mm")),
    Sketcher.Constraint("DistanceY", -1, 1, 0, 2, Q("23.3 mm")),
    Sketcher.Constraint("DistanceY", 25, 2, 25, 1, Q("0.804578 mm")),
])
pocket5 = body.newObject("PartDesign::Pocket", "Pocket004")
pocket5.Profile = sketch9
pocket5.Length = 1
pocket5.Reversed = True

# Sketch on XY plane
sketch10 = body.newObject("Sketcher::SketchObject", "Sketch009")
sketch10.AttachmentSupport = (doc.getObject("XY_Plane"), [""])
sketch10.MapMode = "FlatFace"
sketch10.AttachmentOffset = App.Placement(V(0, 0, 1), App.Rotation())
sketch10.addGeometry([
    Part.LineSegment(V(9.2, 22.5, 0), V(9.2, 18.5, 0)),  # 0
    Part.LineSegment(V(9.2, 18.5, 0), V(7.6, 18.5, 0)),  # 1
    Part.LineSegment(V(7.6, 18.5, 0), V(7.6, 22.5, 0)),  # 2
    Part.LineSegment(V(7.6, 22.5, 0), V(9.2, 22.5, 0)),  # 3
    Part.LineSegment(V(3.6, 22.5, 0), V(3.6, 20.9, 0)),  # 4
    Part.LineSegment(V(3.6, 20.9, 0), V(2, 20.9, 0)),  # 5
    Part.LineSegment(V(2, 20.9, 0), V(2, 22.5, 0)),  # 6
    Part.LineSegment(V(2, 22.5, 0), V(3.6, 22.5, 0)),  # 7
], False)
sketch10.addConstraint([
    Sketcher.Constraint("Coincident", 0, 2, 1, 1),
    Sketcher.Constraint("Coincident", 1, 2, 2, 1),
    Sketcher.Constraint("Coincident", 2, 2, 3, 1),
    Sketcher.Constraint("Coincident", 3, 2, 0, 1),
    Sketcher.Constraint("Coincident", 4, 2, 5, 1),
    Sketcher.Constraint("Coincident", 5, 2, 6, 1),
    Sketcher.Constraint("Coincident", 6, 2, 7, 1),
    Sketcher.Constraint("Coincident", 7, 2, 4, 1),
    Sketcher.Constraint("Vertical", 0),
    Sketcher.Constraint("Horizontal", 1),
    Sketcher.Constraint("Vertical", 2),
    Sketcher.Constraint("Horizontal", 3),
    Sketcher.Constraint("Vertical", 4),
    Sketcher.Constraint("Horizontal", 5),
    Sketcher.Constraint("Vertical", 6),
    Sketcher.Constraint("Horizontal", 7),
    Sketcher.Constraint("Horizontal", 3, 2, 6, 2),
    Sketcher.Constraint("Equal", 3, 5),
    Sketcher.Constraint("Equal", 7, 4),
    Sketcher.Constraint("DistanceY", 0, 2, 0, 1, Q("4 mm")),
    Sketcher.Constraint("DistanceX", 1, 2, 1, 1, Q("1.6 mm")),
    Sketcher.Constraint("DistanceX", -1, 1, 5, 2, Q("2 mm")),
    Sketcher.Constraint("DistanceX", 4, 2, 2, 2, Q("4 mm")),
    Sketcher.Constraint("DistanceY", -1, 1, 0, 2, Q("18.5 mm")),
])
pad5 = body.newObject("PartDesign::Pad", "Pad004")
pad5.Profile = sketch10
pad5.Length = 1
pad5.Reversed = True

doc.recompute()
